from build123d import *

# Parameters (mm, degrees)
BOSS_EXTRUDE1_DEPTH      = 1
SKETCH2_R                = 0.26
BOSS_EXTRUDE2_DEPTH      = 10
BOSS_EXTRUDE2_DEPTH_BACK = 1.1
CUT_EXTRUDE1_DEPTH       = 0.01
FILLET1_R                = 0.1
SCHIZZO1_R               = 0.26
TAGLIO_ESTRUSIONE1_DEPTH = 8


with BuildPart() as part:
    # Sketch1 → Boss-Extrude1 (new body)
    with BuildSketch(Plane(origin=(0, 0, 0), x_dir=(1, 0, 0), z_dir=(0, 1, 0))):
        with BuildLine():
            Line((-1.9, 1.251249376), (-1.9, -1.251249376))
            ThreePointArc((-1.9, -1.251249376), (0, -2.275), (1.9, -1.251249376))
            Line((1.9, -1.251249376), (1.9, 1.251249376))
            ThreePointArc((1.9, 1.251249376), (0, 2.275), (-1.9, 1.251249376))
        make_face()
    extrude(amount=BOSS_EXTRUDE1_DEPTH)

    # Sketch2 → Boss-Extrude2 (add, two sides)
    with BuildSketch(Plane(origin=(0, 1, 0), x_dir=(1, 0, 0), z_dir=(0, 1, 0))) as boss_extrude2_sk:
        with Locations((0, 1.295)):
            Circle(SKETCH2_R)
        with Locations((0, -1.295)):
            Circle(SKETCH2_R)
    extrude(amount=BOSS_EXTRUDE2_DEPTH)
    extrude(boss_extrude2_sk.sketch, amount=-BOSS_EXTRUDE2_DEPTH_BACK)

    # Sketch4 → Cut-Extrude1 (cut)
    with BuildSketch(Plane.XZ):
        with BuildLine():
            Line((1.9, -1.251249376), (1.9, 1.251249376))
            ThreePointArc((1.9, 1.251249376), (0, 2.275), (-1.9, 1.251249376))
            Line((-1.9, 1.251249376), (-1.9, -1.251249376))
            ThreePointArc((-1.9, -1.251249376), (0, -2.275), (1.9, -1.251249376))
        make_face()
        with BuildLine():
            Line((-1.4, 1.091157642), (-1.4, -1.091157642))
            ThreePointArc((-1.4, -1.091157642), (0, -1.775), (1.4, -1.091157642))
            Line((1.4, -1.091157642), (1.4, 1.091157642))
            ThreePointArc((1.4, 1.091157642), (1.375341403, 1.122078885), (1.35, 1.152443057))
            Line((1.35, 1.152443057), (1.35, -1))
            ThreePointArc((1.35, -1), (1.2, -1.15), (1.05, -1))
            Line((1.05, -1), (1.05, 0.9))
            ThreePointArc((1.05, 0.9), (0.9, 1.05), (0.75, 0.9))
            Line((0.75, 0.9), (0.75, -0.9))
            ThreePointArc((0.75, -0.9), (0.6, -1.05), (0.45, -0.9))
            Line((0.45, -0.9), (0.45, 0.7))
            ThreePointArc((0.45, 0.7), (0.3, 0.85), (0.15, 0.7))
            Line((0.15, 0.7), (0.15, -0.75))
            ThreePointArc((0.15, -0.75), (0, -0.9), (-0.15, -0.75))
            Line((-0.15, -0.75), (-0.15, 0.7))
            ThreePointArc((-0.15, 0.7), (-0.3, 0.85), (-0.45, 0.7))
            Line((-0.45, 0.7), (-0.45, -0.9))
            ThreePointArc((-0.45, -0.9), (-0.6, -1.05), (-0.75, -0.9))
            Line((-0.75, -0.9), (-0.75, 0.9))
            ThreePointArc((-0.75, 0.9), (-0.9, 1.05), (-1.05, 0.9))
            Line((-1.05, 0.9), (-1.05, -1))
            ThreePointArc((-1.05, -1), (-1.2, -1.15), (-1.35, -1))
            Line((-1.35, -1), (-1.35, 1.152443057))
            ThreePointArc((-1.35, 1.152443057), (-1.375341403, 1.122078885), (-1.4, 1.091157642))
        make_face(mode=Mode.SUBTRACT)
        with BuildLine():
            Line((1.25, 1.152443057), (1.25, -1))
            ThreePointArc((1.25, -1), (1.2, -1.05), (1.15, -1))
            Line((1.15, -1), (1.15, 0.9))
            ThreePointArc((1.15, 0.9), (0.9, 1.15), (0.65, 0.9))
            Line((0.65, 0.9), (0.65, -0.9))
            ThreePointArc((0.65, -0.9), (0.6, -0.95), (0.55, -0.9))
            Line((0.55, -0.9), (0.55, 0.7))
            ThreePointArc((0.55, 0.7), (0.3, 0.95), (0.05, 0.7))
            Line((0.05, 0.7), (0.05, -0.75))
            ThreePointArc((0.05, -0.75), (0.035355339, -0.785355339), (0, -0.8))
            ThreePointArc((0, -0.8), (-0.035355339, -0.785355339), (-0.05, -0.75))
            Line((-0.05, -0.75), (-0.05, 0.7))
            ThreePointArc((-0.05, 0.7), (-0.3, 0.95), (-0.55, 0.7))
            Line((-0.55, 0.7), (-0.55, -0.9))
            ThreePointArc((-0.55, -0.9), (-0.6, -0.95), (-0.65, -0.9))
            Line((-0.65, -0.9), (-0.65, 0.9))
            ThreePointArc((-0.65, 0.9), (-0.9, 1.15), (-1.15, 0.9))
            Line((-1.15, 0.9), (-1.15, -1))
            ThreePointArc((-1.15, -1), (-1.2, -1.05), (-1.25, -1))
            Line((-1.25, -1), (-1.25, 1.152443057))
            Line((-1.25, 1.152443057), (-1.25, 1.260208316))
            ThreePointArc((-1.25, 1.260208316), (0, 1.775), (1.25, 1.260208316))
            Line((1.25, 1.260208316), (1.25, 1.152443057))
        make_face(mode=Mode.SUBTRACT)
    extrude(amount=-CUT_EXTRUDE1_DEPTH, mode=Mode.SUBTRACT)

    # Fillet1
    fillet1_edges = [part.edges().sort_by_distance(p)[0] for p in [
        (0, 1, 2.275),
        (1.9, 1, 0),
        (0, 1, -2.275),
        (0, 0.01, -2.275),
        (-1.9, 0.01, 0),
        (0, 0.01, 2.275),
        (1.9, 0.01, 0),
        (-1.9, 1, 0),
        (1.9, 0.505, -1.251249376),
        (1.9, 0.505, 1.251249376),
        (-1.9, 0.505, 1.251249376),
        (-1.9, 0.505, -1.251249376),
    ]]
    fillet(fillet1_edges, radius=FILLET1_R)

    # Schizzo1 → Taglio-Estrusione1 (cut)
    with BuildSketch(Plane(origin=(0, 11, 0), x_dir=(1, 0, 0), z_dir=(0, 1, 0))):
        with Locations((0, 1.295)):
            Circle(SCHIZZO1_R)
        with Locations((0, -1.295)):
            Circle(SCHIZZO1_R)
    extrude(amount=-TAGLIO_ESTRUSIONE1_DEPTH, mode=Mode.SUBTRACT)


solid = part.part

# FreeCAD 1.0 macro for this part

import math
import FreeCAD as App
import Part
import Sketcher


def edges_at(feature, points):
    """Names of the edges that pass closest to the given points."""
    edges = feature.Shape.Edges
    near = lambda p: min(range(len(edges)), key=lambda i: edges[i].distToShape(Part.Vertex(*p))[0])
    return sorted({f"Edge{near(p) + 1}" for p in points})

doc = App.newDocument("Part")
params = doc.addObject("Spreadsheet::Sheet", "Params")
for row, (alias, value) in enumerate([
    ("pad1_length", "1 mm"),
    ("sketch2_diameter", "0.52 mm"),
    ("pad2_length", "10 mm"),
    ("pad2_length2", "1.1 mm"),
    ("sketch3_radius", "0.15 mm"),
    ("sketch3_radius2", "0.05 mm"),
    ("sketch3_height", "1.9 mm"),
    ("sketch3_height2", "1.8 mm"),
    ("sketch3_height3", "1.6 mm"),
    ("pocket1_length", "0.01 mm"),
    ("fillet_radius", "0.1 mm"),
    ("sketch4_diameter", "0.52 mm"),
    ("pocket2_length", "8 mm"),
], start=1):
    params.set(f"A{row}", alias)
    params.set(f"B{row}", "=" + value)
    params.setAlias(f"B{row}", alias)

body = doc.addObject("PartDesign::Body", "Body")

# Sketch on XZ plane
sketch1 = body.newObject("Sketcher::SketchObject", "Sketch")
sketch1.AttachmentSupport = (doc.getObject("XZ_Plane"), [""])
sketch1.MapMode = "FlatFace"
sketch1.addGeometry(Part.LineSegment(App.Vector(-1.9, -1.3, 0), App.Vector(-1.9, 1.3, 0)), False)
sketch1.addGeometry(Part.ArcOfCircle(Part.Circle(App.Vector(0, 0, 0), App.Vector(0, 0, 1), 2.3), math.radians(33), math.radians(147)), False)
sketch1.addGeometry(Part.LineSegment(App.Vector(1.9, 1.3, 0), App.Vector(1.9, -1.3, 0)), False)
sketch1.addGeometry(Part.ArcOfCircle(Part.Circle(App.Vector(0, 0, 0), App.Vector(0, 0, 1), 2.3), math.radians(-147), math.radians(-33)), False)
sketch1.addConstraint(Sketcher.Constraint("Coincident", 0, 2, 1, 2))
sketch1.addConstraint(Sketcher.Constraint("Coincident", 1, 1, 2, 1))
sketch1.addConstraint(Sketcher.Constraint("Coincident", 2, 2, 3, 2))
sketch1.addConstraint(Sketcher.Constraint("Coincident", 3, 1, 0, 1))
sketch1.addConstraint(Sketcher.Constraint("Vertical", 0))
sketch1.addConstraint(Sketcher.Constraint("Vertical", 2))
sketch1.addConstraint(Sketcher.Constraint("Coincident", 1, 3, -1, 1))
sketch1.addConstraint(Sketcher.Constraint("Coincident", 3, 3, -1, 1))
sketch1.addConstraint(Sketcher.Constraint("Equal", 1, 3))
sketch1.addConstraint(Sketcher.Constraint("Horizontal", 0, 2, 1, 1))
sketch1.addConstraint(Sketcher.Constraint("Radius", 1, 2.275))
sketch1.addConstraint(Sketcher.Constraint("DistanceX", 0, 2, -1, 1, 1.9))
pad1 = body.newObject("PartDesign::Pad", "Pad")
pad1.Profile = sketch1
pad1.setExpression("Length", "Params.pad1_length")
pad1.Reversed = True

# Sketch on XZ plane
sketch2 = body.newObject("Sketcher::SketchObject", "Sketch001")
sketch2.AttachmentSupport = (doc.getObject("XZ_Plane"), [""])
sketch2.MapMode = "FlatFace"
sketch2.AttachmentOffset = App.Placement(App.Vector(0, 0, -1), App.Rotation())
sketch2.addGeometry(Part.Circle(App.Vector(0, -1.29, 0), App.Vector(0, 0, 1), 0.26), False)
sketch2.addGeometry(Part.Circle(App.Vector(0, 1.29, 0), App.Vector(0, 0, 1), 0.26), False)
sketch2.addConstraint(Sketcher.Constraint("Equal", 0, 1))
sketch2.addConstraint(Sketcher.Constraint("Symmetric", 0, 3, 1, 3, -1, 1))
sketch2.addConstraint(Sketcher.Constraint("PointOnObject", 0, 3, -2))
sketch2.addConstraint(Sketcher.Constraint("Diameter", 0, 0.52))
sketch2.addConstraint(Sketcher.Constraint("DistanceY", 0, 3, 1, 3, 2.59))
sketch2.setExpression("Constraints[3]", "Params.sketch2_diameter")
pad2 = body.newObject("PartDesign::Pad", "Pad001")
pad2.Profile = sketch2
pad2.Type = "TwoLengths"
pad2.setExpression("Length", "Params.pad2_length")
pad2.setExpression("Length2", "Params.pad2_length2")
pad2.Reversed = True

# Sketch on XZ plane
sketch3 = body.newObject("Sketcher::SketchObject", "Sketch002")
sketch3.AttachmentSupport = (doc.getObject("XZ_Plane"), [""])
sketch3.MapMode = "FlatFace"
sketch3.addGeometry(Part.LineSegment(App.Vector(1.9, -1.25, 0), App.Vector(1.9, 1.25, 0)), False)
sketch3.addGeometry(Part.ArcOfCircle(Part.Circle(App.Vector(0, 0, 0), App.Vector(0, 0, 1), 2.27), math.radians(33), math.radians(147)), False)
sketch3.addGeometry(Part.LineSegment(App.Vector(-1.9, 1.25, 0), App.Vector(-1.9, -1.25, 0)), False)
sketch3.addGeometry(Part.ArcOfCircle(Part.Circle(App.Vector(0, 0, 0), App.Vector(0, 0, 1), 2.27), math.radians(-147), math.radians(-33)), False)
sketch3.addGeometry(Part.LineSegment(App.Vector(-1.4, -1.09, 0), App.Vector(-1.4, 1.09, 0)), False)
sketch3.addGeometry(Part.ArcOfCircle(Part.Circle(App.Vector(0, 0, 0), App.Vector(0, 0, 1), 1.78), math.radians(139.51), math.radians(142.07)), False)
sketch3.addGeometry(Part.LineSegment(App.Vector(-1.35, 1.15, 0), App.Vector(-1.35, -1, 0)), False)
sketch3.addGeometry(Part.ArcOfCircle(Part.Circle(App.Vector(-1.2, -1, 0), App.Vector(0, 0, 1), 0.15), math.radians(180), math.radians(360)), False)
sketch3.addGeometry(Part.LineSegment(App.Vector(-1.05, -1, 0), App.Vector(-1.05, 0.9, 0)), False)
sketch3.addGeometry(Part.ArcOfCircle(Part.Circle(App.Vector(-0.9, 0.9, 0), App.Vector(0, 0, 1), 0.15), math.radians(0), math.radians(180)), False)
sketch3.addGeometry(Part.LineSegment(App.Vector(-0.75, 0.9, 0), App.Vector(-0.75, -0.9, 0)), False)
sketch3.addGeometry(Part.ArcOfCircle(Part.Circle(App.Vector(-0.6, -0.9, 0), App.Vector(0, 0, 1), 0.15), math.radians(180), math.radians(360)), False)
sketch3.addGeometry(Part.LineSegment(App.Vector(-0.45, -0.9, 0), App.Vector(-0.45, 0.7, 0)), False)
sketch3.addGeometry(Part.ArcOfCircle(Part.Circle(App.Vector(-0.3, 0.7, 0), App.Vector(0, 0, 1), 0.15), math.radians(0), math.radians(180)), False)
sketch3.addGeometry(Part.LineSegment(App.Vector(-0.15, 0.7, 0), App.Vector(-0.15, -0.75, 0)), False)
sketch3.addGeometry(Part.ArcOfCircle(Part.Circle(App.Vector(0, -0.75, 0), App.Vector(0, 0, 1), 0.15), math.radians(180), math.radians(360)), False)
sketch3.addGeometry(Part.LineSegment(App.Vector(0.15, -0.75, 0), App.Vector(0.15, 0.7, 0)), False)
sketch3.addGeometry(Part.ArcOfCircle(Part.Circle(App.Vector(0.3, 0.7, 0), App.Vector(0, 0, 1), 0.15), math.radians(0), math.radians(180)), False)
sketch3.addGeometry(Part.LineSegment(App.Vector(0.45, 0.7, 0), App.Vector(0.45, -0.9, 0)), False)
sketch3.addGeometry(Part.ArcOfCircle(Part.Circle(App.Vector(0.6, -0.9, 0), App.Vector(0, 0, 1), 0.15), math.radians(180), math.radians(360)), False)
sketch3.addGeometry(Part.LineSegment(App.Vector(0.75, -0.9, 0), App.Vector(0.75, 0.9, 0)), False)
sketch3.addGeometry(Part.ArcOfCircle(Part.Circle(App.Vector(0.9, 0.9, 0), App.Vector(0, 0, 1), 0.15), math.radians(0), math.radians(180)), False)
sketch3.addGeometry(Part.LineSegment(App.Vector(1.05, 0.9, 0), App.Vector(1.05, -1, 0)), False)
sketch3.addGeometry(Part.ArcOfCircle(Part.Circle(App.Vector(1.2, -1, 0), App.Vector(0, 0, 1), 0.15), math.radians(180), math.radians(360)), False)
sketch3.addGeometry(Part.LineSegment(App.Vector(1.35, -1, 0), App.Vector(1.35, 1.15, 0)), False)
sketch3.addGeometry(Part.ArcOfCircle(Part.Circle(App.Vector(0, 0, 0), App.Vector(0, 0, 1), 1.78), math.radians(37.93), math.radians(40.49)), False)
sketch3.addGeometry(Part.LineSegment(App.Vector(1.4, 1.09, 0), App.Vector(1.4, -1.09, 0)), False)
sketch3.addGeometry(Part.ArcOfCircle(Part.Circle(App.Vector(0, 0, 0), App.Vector(0, 0, 1), 1.77), math.radians(-142), math.radians(-38)), False)
sketch3.addGeometry(Part.LineSegment(App.Vector(1.25, 1.26, 0), App.Vector(1.25, -1, 0)), False)
sketch3.addGeometry(Part.ArcOfCircle(Part.Circle(App.Vector(1.2, -1, 0), App.Vector(0, 0, 1), 0.05), math.radians(180), math.radians(360)), False)
sketch3.addGeometry(Part.LineSegment(App.Vector(1.15, -1, 0), App.Vector(1.15, 0.9, 0)), False)
sketch3.addGeometry(Part.ArcOfCircle(Part.Circle(App.Vector(0.9, 0.9, 0), App.Vector(0, 0, 1), 0.25), math.radians(0), math.radians(180)), False)
sketch3.addGeometry(Part.LineSegment(App.Vector(0.65, 0.9, 0), App.Vector(0.65, -0.9, 0)), False)
sketch3.addGeometry(Part.ArcOfCircle(Part.Circle(App.Vector(0.6, -0.9, 0), App.Vector(0, 0, 1), 0.05), math.radians(180), math.radians(360)), False)
sketch3.addGeometry(Part.LineSegment(App.Vector(0.55, -0.9, 0), App.Vector(0.55, 0.7, 0)), False)
sketch3.addGeometry(Part.ArcOfCircle(Part.Circle(App.Vector(0.3, 0.7, 0), App.Vector(0, 0, 1), 0.25), math.radians(0), math.radians(180)), False)
sketch3.addGeometry(Part.LineSegment(App.Vector(0.05, 0.7, 0), App.Vector(0.05, -0.75, 0)), False)
sketch3.addGeometry(Part.ArcOfCircle(Part.Circle(App.Vector(0, -0.75, 0), App.Vector(0, 0, 1), 0.05), math.radians(-90), math.radians(0)), False)
sketch3.addGeometry(Part.ArcOfCircle(Part.Circle(App.Vector(0, -0.75, 0), App.Vector(0, 0, 1), 0.05), math.radians(180), math.radians(270)), False)
sketch3.addGeometry(Part.LineSegment(App.Vector(-0.05, -0.75, 0), App.Vector(-0.05, 0.7, 0)), False)
sketch3.addGeometry(Part.ArcOfCircle(Part.Circle(App.Vector(-0.3, 0.7, 0), App.Vector(0, 0, 1), 0.25), math.radians(0), math.radians(180)), False)
sketch3.addGeometry(Part.LineSegment(App.Vector(-0.55, 0.7, 0), App.Vector(-0.55, -0.9, 0)), False)
sketch3.addGeometry(Part.ArcOfCircle(Part.Circle(App.Vector(-0.6, -0.9, 0), App.Vector(0, 0, 1), 0.05), math.radians(180), math.radians(360)), False)
sketch3.addGeometry(Part.LineSegment(App.Vector(-0.65, -0.9, 0), App.Vector(-0.65, 0.9, 0)), False)
sketch3.addGeometry(Part.ArcOfCircle(Part.Circle(App.Vector(-0.9, 0.9, 0), App.Vector(0, 0, 1), 0.25), math.radians(0), math.radians(180)), False)
sketch3.addGeometry(Part.LineSegment(App.Vector(-1.15, 0.9, 0), App.Vector(-1.15, -1, 0)), False)
sketch3.addGeometry(Part.ArcOfCircle(Part.Circle(App.Vector(-1.2, -1, 0), App.Vector(0, 0, 1), 0.05), math.radians(180), math.radians(360)), False)
sketch3.addGeometry(Part.LineSegment(App.Vector(-1.25, -1, 0), App.Vector(-1.25, 1.26, 0)), False)
sketch3.addGeometry(Part.ArcOfCircle(Part.Circle(App.Vector(0, 0, 0), App.Vector(0, 0, 1), 1.77), math.radians(45), math.radians(135)), False)
sketch3.addConstraint(Sketcher.Constraint("Coincident", 0, 2, 1, 1))
sketch3.addConstraint(Sketcher.Constraint("Coincident", 1, 2, 2, 1))
sketch3.addConstraint(Sketcher.Constraint("Coincident", 2, 2, 3, 1))
sketch3.addConstraint(Sketcher.Constraint("Coincident", 3, 2, 0, 1))
sketch3.addConstraint(Sketcher.Constraint("Coincident", 4, 2, 5, 2))
sketch3.addConstraint(Sketcher.Constraint("Coincident", 5, 1, 6, 1))
sketch3.addConstraint(Sketcher.Constraint("Tangent", 6, 2, 7, 1))
sketch3.addConstraint(Sketcher.Constraint("Tangent", 7, 2, 8, 1))
sketch3.addConstraint(Sketcher.Constraint("Tangent", 8, 2, 9, 2))
sketch3.addConstraint(Sketcher.Constraint("Tangent", 9, 1, 10, 1))
sketch3.addConstraint(Sketcher.Constraint("Tangent", 10, 2, 11, 1))
sketch3.addConstraint(Sketcher.Constraint("Tangent", 11, 2, 12, 1))
sketch3.addConstraint(Sketcher.Constraint("Tangent", 12, 2, 13, 2))
sketch3.addConstraint(Sketcher.Constraint("Tangent", 13, 1, 14, 1))
sketch3.addConstraint(Sketcher.Constraint("Tangent", 14, 2, 15, 1))
sketch3.addConstraint(Sketcher.Constraint("Tangent", 15, 2, 16, 1))
sketch3.addConstraint(Sketcher.Constraint("Tangent", 16, 2, 17, 2))
sketch3.addConstraint(Sketcher.Constraint("Tangent", 17, 1, 18, 1))
sketch3.addConstraint(Sketcher.Constraint("Tangent", 18, 2, 19, 1))
sketch3.addConstraint(Sketcher.Constraint("Tangent", 19, 2, 20, 1))
sketch3.addConstraint(Sketcher.Constraint("Tangent", 20, 2, 21, 2))
sketch3.addConstraint(Sketcher.Constraint("Tangent", 21, 1, 22, 1))
sketch3.addConstraint(Sketcher.Constraint("Tangent", 22, 2, 23, 1))
sketch3.addConstraint(Sketcher.Constraint("Tangent", 23, 2, 24, 1))
sketch3.addConstraint(Sketcher.Constraint("Coincident", 24, 2, 25, 2))
sketch3.addConstraint(Sketcher.Constraint("Coincident", 25, 1, 26, 1))
sketch3.addConstraint(Sketcher.Constraint("Coincident", 26, 2, 27, 2))
sketch3.addConstraint(Sketcher.Constraint("Coincident", 27, 1, 4, 1))
sketch3.addConstraint(Sketcher.Constraint("Tangent", 28, 2, 29, 2))
sketch3.addConstraint(Sketcher.Constraint("Tangent", 29, 1, 30, 1))
sketch3.addConstraint(Sketcher.Constraint("Tangent", 30, 2, 31, 1))
sketch3.addConstraint(Sketcher.Constraint("Tangent", 31, 2, 32, 1))
sketch3.addConstraint(Sketcher.Constraint("Tangent", 32, 2, 33, 2))
sketch3.addConstraint(Sketcher.Constraint("Tangent", 33, 1, 34, 1))
sketch3.addConstraint(Sketcher.Constraint("Tangent", 34, 2, 35, 1))
sketch3.addConstraint(Sketcher.Constraint("Tangent", 35, 2, 36, 1))
sketch3.addConstraint(Sketcher.Constraint("Tangent", 36, 2, 37, 2))
sketch3.addConstraint(Sketcher.Constraint("Tangent", 37, 1, 38, 2))
sketch3.addConstraint(Sketcher.Constraint("Tangent", 38, 1, 39, 1))
sketch3.addConstraint(Sketcher.Constraint("Tangent", 39, 2, 40, 1))
sketch3.addConstraint(Sketcher.Constraint("Tangent", 40, 2, 41, 1))
sketch3.addConstraint(Sketcher.Constraint("Tangent", 41, 2, 42, 2))
sketch3.addConstraint(Sketcher.Constraint("Tangent", 42, 1, 43, 1))
sketch3.addConstraint(Sketcher.Constraint("Tangent", 43, 2, 44, 1))
sketch3.addConstraint(Sketcher.Constraint("Tangent", 44, 2, 45, 1))
sketch3.addConstraint(Sketcher.Constraint("Tangent", 45, 2, 46, 2))
sketch3.addConstraint(Sketcher.Constraint("Tangent", 46, 1, 47, 1))
sketch3.addConstraint(Sketcher.Constraint("Coincident", 47, 2, 48, 2))
sketch3.addConstraint(Sketcher.Constraint("Coincident", 48, 1, 28, 1))
sketch3.addConstraint(Sketcher.Constraint("Vertical", 0))
sketch3.addConstraint(Sketcher.Constraint("Vertical", 2))
sketch3.addConstraint(Sketcher.Constraint("Vertical", 4))
sketch3.addConstraint(Sketcher.Constraint("Vertical", 6))
sketch3.addConstraint(Sketcher.Constraint("Vertical", 8))
sketch3.addConstraint(Sketcher.Constraint("Vertical", 10))
sketch3.addConstraint(Sketcher.Constraint("Vertical", 12))
sketch3.addConstraint(Sketcher.Constraint("Vertical", 14))
sketch3.addConstraint(Sketcher.Constraint("Vertical", 16))
sketch3.addConstraint(Sketcher.Constraint("Vertical", 18))
sketch3.addConstraint(Sketcher.Constraint("Vertical", 20))
sketch3.addConstraint(Sketcher.Constraint("Vertical", 22))
sketch3.addConstraint(Sketcher.Constraint("Vertical", 24))
sketch3.addConstraint(Sketcher.Constraint("Vertical", 26))
sketch3.addConstraint(Sketcher.Constraint("Vertical", 28))
sketch3.addConstraint(Sketcher.Constraint("Vertical", 30))
sketch3.addConstraint(Sketcher.Constraint("Vertical", 32))
sketch3.addConstraint(Sketcher.Constraint("Vertical", 34))
sketch3.addConstraint(Sketcher.Constraint("Vertical", 36))
sketch3.addConstraint(Sketcher.Constraint("Vertical", 39))
sketch3.addConstraint(Sketcher.Constraint("Vertical", 41))
sketch3.addConstraint(Sketcher.Constraint("Vertical", 43))
sketch3.addConstraint(Sketcher.Constraint("Vertical", 45))
sketch3.addConstraint(Sketcher.Constraint("Vertical", 47))
sketch3.addConstraint(Sketcher.Constraint("Coincident", 1, 3, -1, 1))
sketch3.addConstraint(Sketcher.Constraint("Coincident", 3, 3, -1, 1))
sketch3.addConstraint(Sketcher.Constraint("Coincident", 5, 3, -1, 1))
sketch3.addConstraint(Sketcher.Constraint("Coincident", 25, 3, -1, 1))
sketch3.addConstraint(Sketcher.Constraint("Coincident", 27, 3, -1, 1))
sketch3.addConstraint(Sketcher.Constraint("Coincident", 48, 3, -1, 1))
sketch3.addConstraint(Sketcher.Constraint("Coincident", 29, 3, 23, 3))
sketch3.addConstraint(Sketcher.Constraint("Coincident", 31, 3, 21, 3))
sketch3.addConstraint(Sketcher.Constraint("Coincident", 33, 3, 19, 3))
sketch3.addConstraint(Sketcher.Constraint("Coincident", 35, 3, 17, 3))
sketch3.addConstraint(Sketcher.Constraint("Coincident", 37, 3, 15, 3))
sketch3.addConstraint(Sketcher.Constraint("Coincident", 40, 3, 13, 3))
sketch3.addConstraint(Sketcher.Constraint("Coincident", 42, 3, 11, 3))
sketch3.addConstraint(Sketcher.Constraint("Coincident", 44, 3, 9, 3))
sketch3.addConstraint(Sketcher.Constraint("Coincident", 46, 3, 7, 3))
sketch3.addConstraint(Sketcher.Constraint("Equal", 1, 3))
sketch3.addConstraint(Sketcher.Constraint("Equal", 7, 9))
sketch3.addConstraint(Sketcher.Constraint("Equal", 9, 11))
sketch3.addConstraint(Sketcher.Constraint("Equal", 11, 13))
sketch3.addConstraint(Sketcher.Constraint("Equal", 13, 15))
sketch3.addConstraint(Sketcher.Constraint("Equal", 15, 17))
sketch3.addConstraint(Sketcher.Constraint("Equal", 17, 19))
sketch3.addConstraint(Sketcher.Constraint("Equal", 19, 21))
sketch3.addConstraint(Sketcher.Constraint("Equal", 21, 23))
sketch3.addConstraint(Sketcher.Constraint("Equal", 5, 25))
sketch3.addConstraint(Sketcher.Constraint("Equal", 25, 27))
sketch3.addConstraint(Sketcher.Constraint("Equal", 37, 38))
sketch3.addConstraint(Sketcher.Constraint("Equal", 27, 48))
sketch3.addConstraint(Sketcher.Constraint("Symmetric", 9, 1, 19, 2, -1, 1))
sketch3.addConstraint(Sketcher.Constraint("PointOnObject", 37, 1, -2))
sketch3.addConstraint(Sketcher.Constraint("Horizontal", 13, 3, 17, 3))
sketch3.addConstraint(Sketcher.Constraint("Horizontal", 11, 3, 19, 3))
sketch3.addConstraint(Sketcher.Constraint("Horizontal", 9, 3, 21, 3))
sketch3.addConstraint(Sketcher.Constraint("Horizontal", 7, 3, 23, 3))
sketch3.addConstraint(Sketcher.Constraint("Horizontal", 0, 2, 1, 2))
sketch3.addConstraint(Sketcher.Constraint("Horizontal", 4, 2, 25, 1))
sketch3.addConstraint(Sketcher.Constraint("Radius", 7, 0.15))
sketch3.addConstraint(Sketcher.Constraint("Radius", 29, 0.05))
sketch3.addConstraint(Sketcher.Constraint("DistanceY", 8, 1, 8, 2, 1.9))
sketch3.addConstraint(Sketcher.Constraint("DistanceY", 10, 2, 10, 1, 1.8))
sketch3.addConstraint(Sketcher.Constraint("DistanceY", 12, 1, 12, 2, 1.6))
sketch3.addConstraint(Sketcher.Constraint("Radius", 1, 2.275))
sketch3.addConstraint(Sketcher.Constraint("Radius", 5, 1.775001))
sketch3.addConstraint(Sketcher.Constraint("DistanceY", 14, 2, 14, 1, 1.45))
sketch3.addConstraint(Sketcher.Constraint("DistanceX", -1, 1, 0, 2, 1.9))
sketch3.addConstraint(Sketcher.Constraint("DistanceX", 4, 2, -1, 1, 1.4))
sketch3.setExpression("Constraints[109]", "Params.sketch3_radius")
sketch3.setExpression("Constraints[110]", "Params.sketch3_radius2")
sketch3.setExpression("Constraints[111]", "Params.sketch3_height")
sketch3.setExpression("Constraints[112]", "Params.sketch3_height2")
sketch3.setExpression("Constraints[113]", "Params.sketch3_height3")
pocket1 = body.newObject("PartDesign::Pocket", "Pocket")
pocket1.Profile = sketch3
pocket1.setExpression("Length", "Params.pocket1_length")
doc.recompute()

fillet = body.newObject("PartDesign::Fillet", "Fillet")
fillet.Base = (pocket1, edges_at(pocket1, [
    (0, 1, 2.275),
    (1.9, 1, 0),
    (0, 1, -2.275),
    (0, 0.01, -2.275),
    (-1.9, 0.01, 0),
    (0, 0.01, 2.275),
    (1.9, 0.01, 0),
    (-1.9, 1, 0),
    (1.9, 0.505, -1.251),
    (1.9, 0.505, 1.251),
    (-1.9, 0.505, 1.251),
    (-1.9, 0.505, -1.251),
]))
fillet.setExpression("Radius", "Params.fillet_radius")

# Sketch on XZ plane
sketch4 = body.newObject("Sketcher::SketchObject", "Sketch003")
sketch4.AttachmentSupport = (doc.getObject("XZ_Plane"), [""])
sketch4.MapMode = "FlatFace"
sketch4.AttachmentOffset = App.Placement(App.Vector(0, 0, -11), App.Rotation())
sketch4.addGeometry(Part.Circle(App.Vector(0, -1.29, 0), App.Vector(0, 0, 1), 0.26), False)
sketch4.addGeometry(Part.Circle(App.Vector(0, 1.29, 0), App.Vector(0, 0, 1), 0.26), False)
sketch4.addConstraint(Sketcher.Constraint("Equal", 0, 1))
sketch4.addConstraint(Sketcher.Constraint("Symmetric", 0, 3, 1, 3, -1, 1))
sketch4.addConstraint(Sketcher.Constraint("PointOnObject", 0, 3, -2))
sketch4.addConstraint(Sketcher.Constraint("Diameter", 0, 0.52))
sketch4.addConstraint(Sketcher.Constraint("DistanceY", 0, 3, 1, 3, 2.59))
sketch4.setExpression("Constraints[3]", "Params.sketch4_diameter")
pocket2 = body.newObject("PartDesign::Pocket", "Pocket001")
pocket2.Profile = sketch4
pocket2.setExpression("Length", "Params.pocket2_length")
pocket2.Reversed = True

doc.recompute()
